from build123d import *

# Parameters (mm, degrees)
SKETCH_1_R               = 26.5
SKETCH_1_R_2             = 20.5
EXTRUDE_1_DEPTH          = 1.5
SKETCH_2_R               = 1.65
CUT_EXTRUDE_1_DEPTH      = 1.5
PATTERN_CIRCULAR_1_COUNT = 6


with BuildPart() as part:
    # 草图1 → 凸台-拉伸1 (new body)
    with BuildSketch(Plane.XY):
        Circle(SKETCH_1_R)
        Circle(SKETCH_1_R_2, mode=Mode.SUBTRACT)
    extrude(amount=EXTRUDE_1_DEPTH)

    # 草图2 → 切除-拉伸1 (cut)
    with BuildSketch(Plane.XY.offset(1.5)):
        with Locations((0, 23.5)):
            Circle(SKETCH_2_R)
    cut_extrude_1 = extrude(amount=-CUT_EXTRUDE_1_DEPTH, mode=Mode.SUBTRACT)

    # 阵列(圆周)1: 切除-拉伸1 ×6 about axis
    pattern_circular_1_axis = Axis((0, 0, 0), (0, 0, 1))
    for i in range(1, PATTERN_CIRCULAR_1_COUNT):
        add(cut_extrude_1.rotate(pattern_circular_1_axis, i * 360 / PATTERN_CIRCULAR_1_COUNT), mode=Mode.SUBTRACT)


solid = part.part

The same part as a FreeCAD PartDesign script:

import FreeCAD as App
import Part
import Sketcher
from FreeCAD import Vector
Q = App.Units.Quantity

doc = App.newDocument("Part")
body = doc.addObject("PartDesign::Body", "Body")

sketch1 = body.newObject("Sketcher::SketchObject", "Sketch")
sketch1.AttachmentSupport = (doc.getObject("XY_Plane"), [""])
sketch1.MapMode = "FlatFace"
sketch1.addGeometry(Part.Circle(Vector(0, 0, 0), Vector(0, 0, 1), 26), False)
sketch1.addGeometry(Part.Circle(Vector(0, 0, 0), Vector(0, 0, 1), 20), False)
sketch1.addConstraint(Sketcher.Constraint("Coincident", 0, 3, -1, 1))
sketch1.addConstraint(Sketcher.Constraint("Coincident", 1, 3, -1, 1))
sketch1.addConstraint(Sketcher.Constraint("Diameter", 0, Q("53 mm")))
sketch1.addConstraint(Sketcher.Constraint("Diameter", 1, Q("41 mm")))
pad1 = body.newObject("PartDesign::Pad", "Pad")
pad1.Profile = sketch1
pad1.Length = 1.5

sketch2 = body.newObject("Sketcher::SketchObject", "Sketch001")
sketch2.AttachmentSupport = (doc.getObject("XY_Plane"), [""])
sketch2.MapMode = "FlatFace"
sketch2.AttachmentOffset = App.Placement(Vector(0, 0, 1.5), App.Rotation())
sketch2.addGeometry(Part.Circle(Vector(0, 23.5, 0), Vector(0, 0, 1), 1.6), False)
sketch2.addConstraint(Sketcher.Constraint("PointOnObject", 0, 3, -2))
sketch2.addConstraint(Sketcher.Constraint("Diameter", 0, Q("3.3 mm")))
sketch2.addConstraint(Sketcher.Constraint("DistanceY", -1, 1, 0, 3, Q("23.5 mm")))
pocket1 = body.newObject("PartDesign::Pocket", "Pocket")
pocket1.Profile = sketch2
pocket1.Length = 1.5
doc.recompute()

polarpattern = body.newObject("PartDesign::PolarPattern", "PolarPattern")
polarpattern.Originals = [pocket1]
polarpattern.Axis = (doc.getObject("Z_Axis"), [""])
polarpattern.Angle = 360
polarpattern.Occurrences = 6
body.Tip = polarpattern

doc.recompute()
